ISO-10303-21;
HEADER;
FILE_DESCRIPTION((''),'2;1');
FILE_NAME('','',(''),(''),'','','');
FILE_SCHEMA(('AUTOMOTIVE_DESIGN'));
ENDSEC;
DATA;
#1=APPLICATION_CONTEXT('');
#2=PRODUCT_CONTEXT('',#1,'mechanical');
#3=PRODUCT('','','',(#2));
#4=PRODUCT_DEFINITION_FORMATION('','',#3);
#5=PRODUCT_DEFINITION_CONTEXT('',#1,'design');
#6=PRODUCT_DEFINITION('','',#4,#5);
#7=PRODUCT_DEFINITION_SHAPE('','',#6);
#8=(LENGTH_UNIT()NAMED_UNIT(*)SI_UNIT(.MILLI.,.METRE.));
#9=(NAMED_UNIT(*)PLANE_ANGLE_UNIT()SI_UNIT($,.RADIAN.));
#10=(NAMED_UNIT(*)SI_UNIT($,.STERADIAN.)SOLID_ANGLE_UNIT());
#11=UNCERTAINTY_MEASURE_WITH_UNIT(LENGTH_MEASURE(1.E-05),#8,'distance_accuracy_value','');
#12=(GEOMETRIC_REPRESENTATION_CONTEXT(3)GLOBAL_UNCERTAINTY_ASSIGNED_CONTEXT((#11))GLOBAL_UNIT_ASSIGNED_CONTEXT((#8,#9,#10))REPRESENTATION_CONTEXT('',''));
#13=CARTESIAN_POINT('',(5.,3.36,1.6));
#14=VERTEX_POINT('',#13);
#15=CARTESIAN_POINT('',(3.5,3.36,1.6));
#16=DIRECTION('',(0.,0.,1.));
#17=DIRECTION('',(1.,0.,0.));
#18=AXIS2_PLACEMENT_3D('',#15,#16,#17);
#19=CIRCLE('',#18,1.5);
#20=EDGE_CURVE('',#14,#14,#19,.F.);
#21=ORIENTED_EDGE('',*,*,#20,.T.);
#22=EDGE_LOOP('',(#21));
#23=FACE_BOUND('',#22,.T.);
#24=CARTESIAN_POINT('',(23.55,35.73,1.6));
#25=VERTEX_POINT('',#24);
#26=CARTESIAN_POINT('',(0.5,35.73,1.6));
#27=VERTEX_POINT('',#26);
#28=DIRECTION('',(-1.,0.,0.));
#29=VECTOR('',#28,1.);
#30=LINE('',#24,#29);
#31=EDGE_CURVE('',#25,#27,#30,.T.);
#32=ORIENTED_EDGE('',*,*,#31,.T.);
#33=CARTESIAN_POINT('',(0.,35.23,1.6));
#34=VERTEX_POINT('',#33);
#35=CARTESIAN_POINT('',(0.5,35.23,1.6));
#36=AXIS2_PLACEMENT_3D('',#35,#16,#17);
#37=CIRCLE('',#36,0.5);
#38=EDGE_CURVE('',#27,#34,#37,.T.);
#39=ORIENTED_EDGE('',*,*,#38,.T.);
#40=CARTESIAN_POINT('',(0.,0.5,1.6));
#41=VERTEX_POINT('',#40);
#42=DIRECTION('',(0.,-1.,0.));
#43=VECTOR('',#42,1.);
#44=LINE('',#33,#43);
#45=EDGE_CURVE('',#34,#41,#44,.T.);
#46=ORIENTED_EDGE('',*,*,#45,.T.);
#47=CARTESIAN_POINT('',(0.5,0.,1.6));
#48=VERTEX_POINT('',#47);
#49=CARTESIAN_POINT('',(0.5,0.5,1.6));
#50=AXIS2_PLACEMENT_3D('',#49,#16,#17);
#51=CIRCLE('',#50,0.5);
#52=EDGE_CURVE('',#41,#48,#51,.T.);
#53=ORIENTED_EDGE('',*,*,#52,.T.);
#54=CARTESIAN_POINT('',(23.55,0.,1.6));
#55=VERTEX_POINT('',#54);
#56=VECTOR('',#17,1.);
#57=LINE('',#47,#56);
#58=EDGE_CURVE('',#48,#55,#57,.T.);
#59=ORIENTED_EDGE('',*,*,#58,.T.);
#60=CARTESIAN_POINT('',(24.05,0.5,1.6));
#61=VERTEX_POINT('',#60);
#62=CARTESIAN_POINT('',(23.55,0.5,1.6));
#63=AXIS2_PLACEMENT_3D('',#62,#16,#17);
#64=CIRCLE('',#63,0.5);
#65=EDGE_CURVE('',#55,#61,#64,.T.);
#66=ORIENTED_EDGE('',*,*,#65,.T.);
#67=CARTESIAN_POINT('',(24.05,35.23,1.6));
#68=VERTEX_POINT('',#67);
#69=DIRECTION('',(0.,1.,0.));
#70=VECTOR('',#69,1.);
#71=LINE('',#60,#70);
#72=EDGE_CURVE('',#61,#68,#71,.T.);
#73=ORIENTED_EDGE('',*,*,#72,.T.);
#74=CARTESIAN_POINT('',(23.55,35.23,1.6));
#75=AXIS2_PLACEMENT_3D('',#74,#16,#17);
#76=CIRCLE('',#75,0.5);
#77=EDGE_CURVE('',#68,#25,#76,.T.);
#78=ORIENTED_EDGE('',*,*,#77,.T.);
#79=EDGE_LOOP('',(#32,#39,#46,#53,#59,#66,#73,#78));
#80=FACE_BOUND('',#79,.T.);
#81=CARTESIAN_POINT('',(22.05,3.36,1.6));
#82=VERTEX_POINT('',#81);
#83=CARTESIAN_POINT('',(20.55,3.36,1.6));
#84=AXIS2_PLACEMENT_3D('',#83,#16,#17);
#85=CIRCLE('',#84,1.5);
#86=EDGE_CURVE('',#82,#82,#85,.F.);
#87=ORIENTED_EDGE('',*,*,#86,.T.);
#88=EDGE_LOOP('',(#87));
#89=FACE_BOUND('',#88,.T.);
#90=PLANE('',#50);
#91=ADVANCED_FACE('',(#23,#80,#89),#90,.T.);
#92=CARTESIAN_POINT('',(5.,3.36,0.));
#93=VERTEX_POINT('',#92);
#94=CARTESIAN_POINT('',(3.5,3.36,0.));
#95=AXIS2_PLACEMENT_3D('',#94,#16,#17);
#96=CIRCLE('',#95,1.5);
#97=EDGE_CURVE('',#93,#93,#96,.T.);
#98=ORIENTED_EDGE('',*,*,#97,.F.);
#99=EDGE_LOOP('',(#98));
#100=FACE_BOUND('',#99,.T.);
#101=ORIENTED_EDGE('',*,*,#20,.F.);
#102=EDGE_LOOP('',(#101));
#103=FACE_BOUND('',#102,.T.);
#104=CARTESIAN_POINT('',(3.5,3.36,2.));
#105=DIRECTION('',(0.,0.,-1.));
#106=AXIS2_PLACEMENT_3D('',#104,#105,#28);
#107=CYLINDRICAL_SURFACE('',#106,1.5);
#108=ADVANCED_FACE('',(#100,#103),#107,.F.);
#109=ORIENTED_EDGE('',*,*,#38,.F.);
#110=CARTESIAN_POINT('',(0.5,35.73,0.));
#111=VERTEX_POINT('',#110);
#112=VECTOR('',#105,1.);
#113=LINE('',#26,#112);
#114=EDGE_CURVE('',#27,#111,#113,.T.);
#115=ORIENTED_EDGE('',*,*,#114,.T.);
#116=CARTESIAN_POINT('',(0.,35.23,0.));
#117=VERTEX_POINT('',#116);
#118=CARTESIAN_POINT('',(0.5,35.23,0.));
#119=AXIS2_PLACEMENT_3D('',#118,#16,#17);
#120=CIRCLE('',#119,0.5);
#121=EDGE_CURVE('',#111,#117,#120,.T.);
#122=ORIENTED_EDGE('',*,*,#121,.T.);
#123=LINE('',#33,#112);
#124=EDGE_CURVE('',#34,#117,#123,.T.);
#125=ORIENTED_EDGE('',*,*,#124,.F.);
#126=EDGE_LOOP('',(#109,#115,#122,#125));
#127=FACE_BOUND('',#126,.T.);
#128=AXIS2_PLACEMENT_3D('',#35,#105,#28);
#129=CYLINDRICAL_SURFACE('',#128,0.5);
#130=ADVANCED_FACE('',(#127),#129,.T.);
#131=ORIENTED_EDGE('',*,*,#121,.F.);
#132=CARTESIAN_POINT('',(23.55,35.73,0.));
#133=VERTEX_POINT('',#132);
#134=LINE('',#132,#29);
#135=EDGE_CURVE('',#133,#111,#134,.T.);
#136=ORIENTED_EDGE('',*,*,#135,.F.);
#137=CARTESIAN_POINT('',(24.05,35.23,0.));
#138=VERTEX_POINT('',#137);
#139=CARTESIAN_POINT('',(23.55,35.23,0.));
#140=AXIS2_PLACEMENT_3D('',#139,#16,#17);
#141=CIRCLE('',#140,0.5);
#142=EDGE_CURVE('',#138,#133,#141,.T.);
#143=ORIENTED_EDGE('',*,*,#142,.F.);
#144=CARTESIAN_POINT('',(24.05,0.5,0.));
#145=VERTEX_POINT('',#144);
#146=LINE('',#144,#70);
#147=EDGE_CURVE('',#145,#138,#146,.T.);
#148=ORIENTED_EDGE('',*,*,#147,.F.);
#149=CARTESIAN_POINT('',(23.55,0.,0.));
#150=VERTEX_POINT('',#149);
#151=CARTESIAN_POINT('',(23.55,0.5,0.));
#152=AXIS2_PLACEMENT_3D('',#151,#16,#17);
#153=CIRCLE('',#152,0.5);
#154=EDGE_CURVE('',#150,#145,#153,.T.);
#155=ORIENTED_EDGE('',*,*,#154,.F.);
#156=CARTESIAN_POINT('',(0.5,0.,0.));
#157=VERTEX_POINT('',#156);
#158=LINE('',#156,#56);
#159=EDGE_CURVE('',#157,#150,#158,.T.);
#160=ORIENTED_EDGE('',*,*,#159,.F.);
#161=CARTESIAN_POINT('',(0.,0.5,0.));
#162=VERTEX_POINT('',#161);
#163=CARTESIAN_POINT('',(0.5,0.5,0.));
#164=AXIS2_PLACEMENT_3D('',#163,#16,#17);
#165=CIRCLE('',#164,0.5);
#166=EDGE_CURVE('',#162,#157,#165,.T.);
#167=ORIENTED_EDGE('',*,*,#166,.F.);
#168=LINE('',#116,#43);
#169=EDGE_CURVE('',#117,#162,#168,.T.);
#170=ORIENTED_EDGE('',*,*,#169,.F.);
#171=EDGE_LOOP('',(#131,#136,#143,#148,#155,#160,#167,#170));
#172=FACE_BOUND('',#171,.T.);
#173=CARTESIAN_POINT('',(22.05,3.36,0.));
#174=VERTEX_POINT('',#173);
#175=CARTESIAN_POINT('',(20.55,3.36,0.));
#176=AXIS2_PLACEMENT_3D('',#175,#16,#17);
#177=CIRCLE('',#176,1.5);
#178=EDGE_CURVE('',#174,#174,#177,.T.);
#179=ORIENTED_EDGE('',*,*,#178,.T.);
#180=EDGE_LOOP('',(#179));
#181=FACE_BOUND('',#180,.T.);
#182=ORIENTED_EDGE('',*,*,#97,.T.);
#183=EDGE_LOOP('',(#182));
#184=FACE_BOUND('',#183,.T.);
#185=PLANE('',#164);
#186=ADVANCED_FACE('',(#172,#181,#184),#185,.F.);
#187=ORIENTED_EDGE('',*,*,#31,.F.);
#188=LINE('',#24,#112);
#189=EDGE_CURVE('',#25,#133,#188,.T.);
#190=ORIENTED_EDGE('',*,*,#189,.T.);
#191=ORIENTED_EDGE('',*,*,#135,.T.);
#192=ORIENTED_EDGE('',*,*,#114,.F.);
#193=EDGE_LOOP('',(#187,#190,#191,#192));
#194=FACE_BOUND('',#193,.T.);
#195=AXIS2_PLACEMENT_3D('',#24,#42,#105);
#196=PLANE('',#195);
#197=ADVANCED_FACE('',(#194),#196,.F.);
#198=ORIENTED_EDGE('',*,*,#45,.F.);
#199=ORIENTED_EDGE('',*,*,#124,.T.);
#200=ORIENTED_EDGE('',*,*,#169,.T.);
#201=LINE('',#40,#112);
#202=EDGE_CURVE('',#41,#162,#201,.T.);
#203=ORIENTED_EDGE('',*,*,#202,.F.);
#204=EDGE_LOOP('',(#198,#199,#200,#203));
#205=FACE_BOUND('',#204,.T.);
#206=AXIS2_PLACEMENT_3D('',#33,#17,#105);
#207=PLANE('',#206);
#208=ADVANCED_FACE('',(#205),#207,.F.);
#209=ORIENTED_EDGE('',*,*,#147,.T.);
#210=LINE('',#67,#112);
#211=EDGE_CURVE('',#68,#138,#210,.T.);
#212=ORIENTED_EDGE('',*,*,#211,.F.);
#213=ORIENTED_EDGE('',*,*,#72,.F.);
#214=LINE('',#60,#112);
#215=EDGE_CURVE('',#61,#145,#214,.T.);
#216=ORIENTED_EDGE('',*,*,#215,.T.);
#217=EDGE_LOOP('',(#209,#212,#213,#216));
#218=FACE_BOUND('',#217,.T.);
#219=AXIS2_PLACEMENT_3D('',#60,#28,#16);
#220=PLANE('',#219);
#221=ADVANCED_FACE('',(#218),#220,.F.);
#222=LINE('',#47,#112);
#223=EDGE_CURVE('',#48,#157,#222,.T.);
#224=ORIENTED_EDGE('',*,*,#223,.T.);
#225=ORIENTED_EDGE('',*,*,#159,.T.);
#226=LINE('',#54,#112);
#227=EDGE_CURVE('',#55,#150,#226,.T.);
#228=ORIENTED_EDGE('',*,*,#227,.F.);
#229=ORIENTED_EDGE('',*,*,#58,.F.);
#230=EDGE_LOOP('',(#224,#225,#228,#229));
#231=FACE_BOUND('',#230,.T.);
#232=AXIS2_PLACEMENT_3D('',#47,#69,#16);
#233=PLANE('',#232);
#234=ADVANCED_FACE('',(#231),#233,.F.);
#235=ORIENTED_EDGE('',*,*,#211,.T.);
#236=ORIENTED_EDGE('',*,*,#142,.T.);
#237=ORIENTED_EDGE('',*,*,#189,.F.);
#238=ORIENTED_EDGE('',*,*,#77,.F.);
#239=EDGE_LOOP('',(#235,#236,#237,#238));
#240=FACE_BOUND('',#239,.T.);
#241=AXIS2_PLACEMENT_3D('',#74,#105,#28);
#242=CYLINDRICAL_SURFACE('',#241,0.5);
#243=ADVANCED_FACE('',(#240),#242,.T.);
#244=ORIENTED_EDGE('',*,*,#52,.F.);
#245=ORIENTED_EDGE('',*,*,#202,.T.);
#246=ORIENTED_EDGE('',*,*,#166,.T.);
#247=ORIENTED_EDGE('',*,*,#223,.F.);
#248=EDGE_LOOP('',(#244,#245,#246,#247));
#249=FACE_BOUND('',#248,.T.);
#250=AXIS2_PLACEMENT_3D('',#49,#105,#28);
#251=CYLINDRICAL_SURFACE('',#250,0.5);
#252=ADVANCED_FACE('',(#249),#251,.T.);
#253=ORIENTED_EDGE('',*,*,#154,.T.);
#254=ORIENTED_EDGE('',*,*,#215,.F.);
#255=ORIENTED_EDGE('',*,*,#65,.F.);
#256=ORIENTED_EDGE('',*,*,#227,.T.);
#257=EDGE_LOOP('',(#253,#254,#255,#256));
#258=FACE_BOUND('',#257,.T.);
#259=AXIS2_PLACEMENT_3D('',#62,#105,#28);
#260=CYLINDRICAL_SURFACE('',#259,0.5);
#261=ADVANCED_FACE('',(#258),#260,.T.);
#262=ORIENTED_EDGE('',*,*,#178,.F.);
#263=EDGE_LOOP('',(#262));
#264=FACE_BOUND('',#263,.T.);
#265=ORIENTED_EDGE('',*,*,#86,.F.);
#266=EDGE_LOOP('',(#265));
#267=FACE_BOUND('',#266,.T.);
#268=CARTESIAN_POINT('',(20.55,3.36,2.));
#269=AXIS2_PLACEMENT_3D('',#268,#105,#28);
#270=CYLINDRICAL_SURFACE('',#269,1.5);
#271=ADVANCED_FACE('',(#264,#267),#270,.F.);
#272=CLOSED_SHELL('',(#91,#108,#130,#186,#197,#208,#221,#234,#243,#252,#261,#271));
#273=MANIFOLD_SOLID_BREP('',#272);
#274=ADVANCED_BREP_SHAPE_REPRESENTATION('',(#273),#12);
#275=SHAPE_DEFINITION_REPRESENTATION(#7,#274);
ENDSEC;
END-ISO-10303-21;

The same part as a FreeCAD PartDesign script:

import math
import FreeCAD as App
import Part
import Sketcher

V = App.Vector

doc = App.newDocument("Part")
body = doc.addObject("PartDesign::Body", "Body")

sketch1 = doc.addObject("Sketcher::SketchObject", "Sketch")
body.addObject(sketch1)
sketch1.AttachmentSupport = (doc.XY_Plane, [""])
sketch1.MapMode = "FlatFace"
sketch1.addGeometry(Part.LineSegment(V(0.5, 0, 0), V(23.55, 0, 0)), False)
sketch1.addGeometry(Part.ArcOfCircle(Part.Circle(V(23.55, 0.5, 0), V(0, 0, 1), 0.5), math.radians(-90), math.radians(0)), False)
sketch1.addGeometry(Part.LineSegment(V(24.05, 0.5, 0), V(24.05, 35.23, 0)), False)
sketch1.addGeometry(Part.ArcOfCircle(Part.Circle(V(23.55, 35.23, 0), V(0, 0, 1), 0.5), math.radians(0), math.radians(90)), False)
sketch1.addGeometry(Part.LineSegment(V(23.55, 35.73, 0), V(0.5, 35.73, 0)), False)
sketch1.addGeometry(Part.ArcOfCircle(Part.Circle(V(0.5, 35.23, 0), V(0, 0, 1), 0.5), math.radians(90), math.radians(180)), False)
sketch1.addGeometry(Part.LineSegment(V(0, 35.23, 0), V(0, 0.5, 0)), False)
sketch1.addGeometry(Part.ArcOfCircle(Part.Circle(V(0.5, 0.5, 0), V(0, 0, 1), 0.5), math.radians(180), math.radians(270)), False)
sketch1.addConstraint(Sketcher.Constraint("Tangent", 0, 2, 1, 1))
sketch1.addConstraint(Sketcher.Constraint("Tangent", 1, 2, 2, 1))
sketch1.addConstraint(Sketcher.Constraint("Tangent", 2, 2, 3, 1))
sketch1.addConstraint(Sketcher.Constraint("Tangent", 3, 2, 4, 1))
sketch1.addConstraint(Sketcher.Constraint("Tangent", 4, 2, 5, 1))
sketch1.addConstraint(Sketcher.Constraint("Tangent", 5, 2, 6, 1))
sketch1.addConstraint(Sketcher.Constraint("Tangent", 6, 2, 7, 1))
sketch1.addConstraint(Sketcher.Constraint("Tangent", 7, 2, 0, 1))
sketch1.addConstraint(Sketcher.Constraint("Horizontal", 0))
sketch1.addConstraint(Sketcher.Constraint("Vertical", 2))
sketch1.addConstraint(Sketcher.Constraint("Horizontal", 4))
sketch1.addConstraint(Sketcher.Constraint("Vertical", 6))
sketch1.addConstraint(Sketcher.Constraint("Equal", 1, 3))
sketch1.addConstraint(Sketcher.Constraint("Equal", 3, 5))
sketch1.addConstraint(Sketcher.Constraint("Equal", 5, 7))
sketch1.addConstraint(Sketcher.Constraint("PointOnObject", 0, 2, -1))
sketch1.addConstraint(Sketcher.Constraint("PointOnObject", 5, 2, -2))
sketch1.addConstraint(Sketcher.Constraint("Radius", 1, 0.5))
sketch1.addConstraint(Sketcher.Constraint("DistanceX", 0, 1, 0, 2, 23.05))
sketch1.addConstraint(Sketcher.Constraint("DistanceY", 2, 1, 2, 2, 34.73))
pad1 = doc.addObject("PartDesign::Pad", "Pad")
body.addObject(pad1)
pad1.Profile = sketch1
pad1.Length = 1.6

sketch2 = doc.addObject("Sketcher::SketchObject", "Sketch001")
body.addObject(sketch2)
sketch2.AttachmentSupport = (doc.XY_Plane, [""])
sketch2.MapMode = "FlatFace"
sketch2.addGeometry(Part.Circle(V(3.5, 3.36, 0), V(0, 0, 1), 1.5), False)
sketch2.addGeometry(Part.Circle(V(20.55, 3.36, 0), V(0, 0, 1), 1.5), False)
sketch2.addConstraint(Sketcher.Constraint("Equal", 0, 1))
sketch2.addConstraint(Sketcher.Constraint("Horizontal", 0, 3, 1, 3))
sketch2.addConstraint(Sketcher.Constraint("Diameter", 0, 3.0))
sketch2.addConstraint(Sketcher.Constraint("DistanceX", -1, 1, 0, 3, 3.5))
sketch2.addConstraint(Sketcher.Constraint("DistanceY", -1, 1, 0, 3, 3.36))
sketch2.addConstraint(Sketcher.Constraint("DistanceX", -1, 1, 1, 3, 20.55))
pocket1 = doc.addObject("PartDesign::Pocket", "Pocket")
body.addObject(pocket1)
pocket1.Profile = sketch2
pocket1.Length = 2
pocket1.Reversed = True

doc.recompute()
